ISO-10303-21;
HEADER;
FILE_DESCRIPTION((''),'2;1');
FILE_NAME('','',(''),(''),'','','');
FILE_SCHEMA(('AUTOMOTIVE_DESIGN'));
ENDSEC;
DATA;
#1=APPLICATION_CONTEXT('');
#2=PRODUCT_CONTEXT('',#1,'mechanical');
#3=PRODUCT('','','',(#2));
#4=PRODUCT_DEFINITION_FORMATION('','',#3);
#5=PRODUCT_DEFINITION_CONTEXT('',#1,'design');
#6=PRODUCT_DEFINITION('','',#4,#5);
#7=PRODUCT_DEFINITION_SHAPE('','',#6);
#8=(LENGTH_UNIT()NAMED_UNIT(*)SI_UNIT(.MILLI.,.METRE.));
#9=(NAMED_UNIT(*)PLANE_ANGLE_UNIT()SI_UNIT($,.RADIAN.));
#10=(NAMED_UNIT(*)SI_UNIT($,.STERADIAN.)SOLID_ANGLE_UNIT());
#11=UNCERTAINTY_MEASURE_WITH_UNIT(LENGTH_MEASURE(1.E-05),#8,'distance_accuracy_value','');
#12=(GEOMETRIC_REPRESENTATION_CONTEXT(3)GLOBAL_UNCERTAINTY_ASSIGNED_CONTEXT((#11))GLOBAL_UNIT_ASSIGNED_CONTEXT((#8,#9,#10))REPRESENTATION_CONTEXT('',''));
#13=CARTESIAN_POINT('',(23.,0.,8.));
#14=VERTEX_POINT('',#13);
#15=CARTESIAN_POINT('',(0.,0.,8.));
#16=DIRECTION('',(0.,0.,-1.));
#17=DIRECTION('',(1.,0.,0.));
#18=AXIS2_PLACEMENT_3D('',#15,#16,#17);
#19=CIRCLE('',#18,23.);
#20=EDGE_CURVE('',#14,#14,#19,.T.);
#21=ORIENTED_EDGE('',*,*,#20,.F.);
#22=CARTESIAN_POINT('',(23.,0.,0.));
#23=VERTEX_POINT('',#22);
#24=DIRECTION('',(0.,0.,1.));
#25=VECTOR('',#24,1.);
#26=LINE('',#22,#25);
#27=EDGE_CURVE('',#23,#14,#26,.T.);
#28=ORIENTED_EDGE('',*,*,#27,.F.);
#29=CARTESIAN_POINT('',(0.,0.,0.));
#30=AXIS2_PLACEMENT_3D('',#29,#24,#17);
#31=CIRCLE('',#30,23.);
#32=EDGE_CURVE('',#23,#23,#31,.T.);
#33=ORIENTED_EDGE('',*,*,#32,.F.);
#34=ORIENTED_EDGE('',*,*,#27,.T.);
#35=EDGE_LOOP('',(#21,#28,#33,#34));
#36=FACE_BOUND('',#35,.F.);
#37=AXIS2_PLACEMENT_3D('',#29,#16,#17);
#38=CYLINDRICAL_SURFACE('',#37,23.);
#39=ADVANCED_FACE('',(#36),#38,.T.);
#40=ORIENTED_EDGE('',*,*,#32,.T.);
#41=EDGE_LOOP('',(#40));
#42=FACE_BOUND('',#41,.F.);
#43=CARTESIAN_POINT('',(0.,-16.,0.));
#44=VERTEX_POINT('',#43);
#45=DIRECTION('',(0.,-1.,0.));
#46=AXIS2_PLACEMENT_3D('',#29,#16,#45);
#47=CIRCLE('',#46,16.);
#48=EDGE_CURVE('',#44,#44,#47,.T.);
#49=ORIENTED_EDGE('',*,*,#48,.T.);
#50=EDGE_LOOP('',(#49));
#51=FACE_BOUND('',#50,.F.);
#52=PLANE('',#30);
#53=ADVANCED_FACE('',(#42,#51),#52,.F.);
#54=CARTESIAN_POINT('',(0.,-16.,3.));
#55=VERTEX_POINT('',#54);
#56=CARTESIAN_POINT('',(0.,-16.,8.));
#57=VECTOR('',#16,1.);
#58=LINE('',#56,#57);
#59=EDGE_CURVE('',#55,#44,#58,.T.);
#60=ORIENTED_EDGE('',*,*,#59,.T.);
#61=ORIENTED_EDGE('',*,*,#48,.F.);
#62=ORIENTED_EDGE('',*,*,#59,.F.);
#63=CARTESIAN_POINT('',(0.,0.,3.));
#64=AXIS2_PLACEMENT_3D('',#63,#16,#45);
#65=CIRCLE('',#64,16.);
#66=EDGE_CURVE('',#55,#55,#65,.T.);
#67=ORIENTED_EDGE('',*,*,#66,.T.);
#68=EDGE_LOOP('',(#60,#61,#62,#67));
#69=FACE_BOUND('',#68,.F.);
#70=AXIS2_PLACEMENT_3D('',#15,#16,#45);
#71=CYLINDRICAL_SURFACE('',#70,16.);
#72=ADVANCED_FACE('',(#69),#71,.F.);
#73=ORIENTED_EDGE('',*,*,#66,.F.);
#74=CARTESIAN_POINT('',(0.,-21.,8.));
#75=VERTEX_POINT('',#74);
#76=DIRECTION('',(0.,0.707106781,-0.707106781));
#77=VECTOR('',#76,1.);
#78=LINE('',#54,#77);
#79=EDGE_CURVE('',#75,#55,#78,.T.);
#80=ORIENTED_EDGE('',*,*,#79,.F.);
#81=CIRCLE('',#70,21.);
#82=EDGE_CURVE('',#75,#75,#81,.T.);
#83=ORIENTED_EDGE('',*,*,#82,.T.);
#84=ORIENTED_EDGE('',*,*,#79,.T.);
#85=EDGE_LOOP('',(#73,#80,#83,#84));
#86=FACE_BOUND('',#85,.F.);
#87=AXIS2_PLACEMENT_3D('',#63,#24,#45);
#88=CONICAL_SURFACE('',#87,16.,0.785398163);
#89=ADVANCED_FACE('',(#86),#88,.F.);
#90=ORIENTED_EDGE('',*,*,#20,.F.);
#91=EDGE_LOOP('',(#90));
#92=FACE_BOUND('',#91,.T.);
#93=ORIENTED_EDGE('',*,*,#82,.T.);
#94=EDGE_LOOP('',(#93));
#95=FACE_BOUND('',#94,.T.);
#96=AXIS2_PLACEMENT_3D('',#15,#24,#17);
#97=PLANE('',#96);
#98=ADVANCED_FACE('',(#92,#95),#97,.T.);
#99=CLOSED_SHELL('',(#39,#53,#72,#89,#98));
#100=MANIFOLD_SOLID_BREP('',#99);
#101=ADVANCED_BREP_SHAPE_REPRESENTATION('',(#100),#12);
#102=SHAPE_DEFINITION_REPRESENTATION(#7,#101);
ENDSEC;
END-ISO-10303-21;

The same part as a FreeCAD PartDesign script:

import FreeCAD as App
import Part
import Sketcher

V = App.Vector
Q = App.Units.Quantity


def edges_at(feature, points):
    """Names of the edges that pass closest to the given points."""
    edges = feature.Shape.Edges
    near = lambda p: min(range(len(edges)), key=lambda i: edges[i].distToShape(Part.Vertex(*p))[0])
    return sorted({f"Edge{near(p) + 1}" for p in points})

doc = App.newDocument("Part")
body = doc.addObject("PartDesign::Body", "Body")

sketch1 = body.newObject("Sketcher::SketchObject", "Sketch")
sketch1.AttachmentSupport = (doc.getObject("XY_Plane"), [""])
sketch1.MapMode = "FlatFace"
sketch1.addGeometry(Part.Circle(V(0, 0, 0), V(0, 0, 1), 23), False)
sketch1.addConstraint([
    Sketcher.Constraint("Coincident", 0, 3, -1, 1),
    Sketcher.Constraint("Diameter", 0, Q("46 mm")),
])
pad1 = body.newObject("PartDesign::Pad", "Pad")
pad1.Profile = sketch1
pad1.Length = 8

sketch2 = body.newObject("Sketcher::SketchObject", "Sketch001")
sketch2.AttachmentSupport = (doc.getObject("XY_Plane"), [""])
sketch2.MapMode = "FlatFace"
sketch2.AttachmentOffset = App.Placement(V(0, 0, 8), App.Rotation())
sketch2.addGeometry(Part.Circle(V(0, 0, 0), V(0, 0, 1), 16), False)
sketch2.addConstraint([
    Sketcher.Constraint("Coincident", 0, 3, -1, 1),
    Sketcher.Constraint("Diameter", 0, Q("32 mm")),
])
doc.recompute()
hole = body.newObject("PartDesign::Hole", "Hole")
hole.Profile = sketch2
hole.ThreadType = "None"
hole.Diameter = 32
hole.DepthType = "ThroughAll"
doc.recompute()

chamfer = body.newObject("PartDesign::Chamfer", "Chamfer")
chamfer.Base = (hole, edges_at(hole, [(0, 16, 8)]))
chamfer.Size = 5

doc.recompute()
